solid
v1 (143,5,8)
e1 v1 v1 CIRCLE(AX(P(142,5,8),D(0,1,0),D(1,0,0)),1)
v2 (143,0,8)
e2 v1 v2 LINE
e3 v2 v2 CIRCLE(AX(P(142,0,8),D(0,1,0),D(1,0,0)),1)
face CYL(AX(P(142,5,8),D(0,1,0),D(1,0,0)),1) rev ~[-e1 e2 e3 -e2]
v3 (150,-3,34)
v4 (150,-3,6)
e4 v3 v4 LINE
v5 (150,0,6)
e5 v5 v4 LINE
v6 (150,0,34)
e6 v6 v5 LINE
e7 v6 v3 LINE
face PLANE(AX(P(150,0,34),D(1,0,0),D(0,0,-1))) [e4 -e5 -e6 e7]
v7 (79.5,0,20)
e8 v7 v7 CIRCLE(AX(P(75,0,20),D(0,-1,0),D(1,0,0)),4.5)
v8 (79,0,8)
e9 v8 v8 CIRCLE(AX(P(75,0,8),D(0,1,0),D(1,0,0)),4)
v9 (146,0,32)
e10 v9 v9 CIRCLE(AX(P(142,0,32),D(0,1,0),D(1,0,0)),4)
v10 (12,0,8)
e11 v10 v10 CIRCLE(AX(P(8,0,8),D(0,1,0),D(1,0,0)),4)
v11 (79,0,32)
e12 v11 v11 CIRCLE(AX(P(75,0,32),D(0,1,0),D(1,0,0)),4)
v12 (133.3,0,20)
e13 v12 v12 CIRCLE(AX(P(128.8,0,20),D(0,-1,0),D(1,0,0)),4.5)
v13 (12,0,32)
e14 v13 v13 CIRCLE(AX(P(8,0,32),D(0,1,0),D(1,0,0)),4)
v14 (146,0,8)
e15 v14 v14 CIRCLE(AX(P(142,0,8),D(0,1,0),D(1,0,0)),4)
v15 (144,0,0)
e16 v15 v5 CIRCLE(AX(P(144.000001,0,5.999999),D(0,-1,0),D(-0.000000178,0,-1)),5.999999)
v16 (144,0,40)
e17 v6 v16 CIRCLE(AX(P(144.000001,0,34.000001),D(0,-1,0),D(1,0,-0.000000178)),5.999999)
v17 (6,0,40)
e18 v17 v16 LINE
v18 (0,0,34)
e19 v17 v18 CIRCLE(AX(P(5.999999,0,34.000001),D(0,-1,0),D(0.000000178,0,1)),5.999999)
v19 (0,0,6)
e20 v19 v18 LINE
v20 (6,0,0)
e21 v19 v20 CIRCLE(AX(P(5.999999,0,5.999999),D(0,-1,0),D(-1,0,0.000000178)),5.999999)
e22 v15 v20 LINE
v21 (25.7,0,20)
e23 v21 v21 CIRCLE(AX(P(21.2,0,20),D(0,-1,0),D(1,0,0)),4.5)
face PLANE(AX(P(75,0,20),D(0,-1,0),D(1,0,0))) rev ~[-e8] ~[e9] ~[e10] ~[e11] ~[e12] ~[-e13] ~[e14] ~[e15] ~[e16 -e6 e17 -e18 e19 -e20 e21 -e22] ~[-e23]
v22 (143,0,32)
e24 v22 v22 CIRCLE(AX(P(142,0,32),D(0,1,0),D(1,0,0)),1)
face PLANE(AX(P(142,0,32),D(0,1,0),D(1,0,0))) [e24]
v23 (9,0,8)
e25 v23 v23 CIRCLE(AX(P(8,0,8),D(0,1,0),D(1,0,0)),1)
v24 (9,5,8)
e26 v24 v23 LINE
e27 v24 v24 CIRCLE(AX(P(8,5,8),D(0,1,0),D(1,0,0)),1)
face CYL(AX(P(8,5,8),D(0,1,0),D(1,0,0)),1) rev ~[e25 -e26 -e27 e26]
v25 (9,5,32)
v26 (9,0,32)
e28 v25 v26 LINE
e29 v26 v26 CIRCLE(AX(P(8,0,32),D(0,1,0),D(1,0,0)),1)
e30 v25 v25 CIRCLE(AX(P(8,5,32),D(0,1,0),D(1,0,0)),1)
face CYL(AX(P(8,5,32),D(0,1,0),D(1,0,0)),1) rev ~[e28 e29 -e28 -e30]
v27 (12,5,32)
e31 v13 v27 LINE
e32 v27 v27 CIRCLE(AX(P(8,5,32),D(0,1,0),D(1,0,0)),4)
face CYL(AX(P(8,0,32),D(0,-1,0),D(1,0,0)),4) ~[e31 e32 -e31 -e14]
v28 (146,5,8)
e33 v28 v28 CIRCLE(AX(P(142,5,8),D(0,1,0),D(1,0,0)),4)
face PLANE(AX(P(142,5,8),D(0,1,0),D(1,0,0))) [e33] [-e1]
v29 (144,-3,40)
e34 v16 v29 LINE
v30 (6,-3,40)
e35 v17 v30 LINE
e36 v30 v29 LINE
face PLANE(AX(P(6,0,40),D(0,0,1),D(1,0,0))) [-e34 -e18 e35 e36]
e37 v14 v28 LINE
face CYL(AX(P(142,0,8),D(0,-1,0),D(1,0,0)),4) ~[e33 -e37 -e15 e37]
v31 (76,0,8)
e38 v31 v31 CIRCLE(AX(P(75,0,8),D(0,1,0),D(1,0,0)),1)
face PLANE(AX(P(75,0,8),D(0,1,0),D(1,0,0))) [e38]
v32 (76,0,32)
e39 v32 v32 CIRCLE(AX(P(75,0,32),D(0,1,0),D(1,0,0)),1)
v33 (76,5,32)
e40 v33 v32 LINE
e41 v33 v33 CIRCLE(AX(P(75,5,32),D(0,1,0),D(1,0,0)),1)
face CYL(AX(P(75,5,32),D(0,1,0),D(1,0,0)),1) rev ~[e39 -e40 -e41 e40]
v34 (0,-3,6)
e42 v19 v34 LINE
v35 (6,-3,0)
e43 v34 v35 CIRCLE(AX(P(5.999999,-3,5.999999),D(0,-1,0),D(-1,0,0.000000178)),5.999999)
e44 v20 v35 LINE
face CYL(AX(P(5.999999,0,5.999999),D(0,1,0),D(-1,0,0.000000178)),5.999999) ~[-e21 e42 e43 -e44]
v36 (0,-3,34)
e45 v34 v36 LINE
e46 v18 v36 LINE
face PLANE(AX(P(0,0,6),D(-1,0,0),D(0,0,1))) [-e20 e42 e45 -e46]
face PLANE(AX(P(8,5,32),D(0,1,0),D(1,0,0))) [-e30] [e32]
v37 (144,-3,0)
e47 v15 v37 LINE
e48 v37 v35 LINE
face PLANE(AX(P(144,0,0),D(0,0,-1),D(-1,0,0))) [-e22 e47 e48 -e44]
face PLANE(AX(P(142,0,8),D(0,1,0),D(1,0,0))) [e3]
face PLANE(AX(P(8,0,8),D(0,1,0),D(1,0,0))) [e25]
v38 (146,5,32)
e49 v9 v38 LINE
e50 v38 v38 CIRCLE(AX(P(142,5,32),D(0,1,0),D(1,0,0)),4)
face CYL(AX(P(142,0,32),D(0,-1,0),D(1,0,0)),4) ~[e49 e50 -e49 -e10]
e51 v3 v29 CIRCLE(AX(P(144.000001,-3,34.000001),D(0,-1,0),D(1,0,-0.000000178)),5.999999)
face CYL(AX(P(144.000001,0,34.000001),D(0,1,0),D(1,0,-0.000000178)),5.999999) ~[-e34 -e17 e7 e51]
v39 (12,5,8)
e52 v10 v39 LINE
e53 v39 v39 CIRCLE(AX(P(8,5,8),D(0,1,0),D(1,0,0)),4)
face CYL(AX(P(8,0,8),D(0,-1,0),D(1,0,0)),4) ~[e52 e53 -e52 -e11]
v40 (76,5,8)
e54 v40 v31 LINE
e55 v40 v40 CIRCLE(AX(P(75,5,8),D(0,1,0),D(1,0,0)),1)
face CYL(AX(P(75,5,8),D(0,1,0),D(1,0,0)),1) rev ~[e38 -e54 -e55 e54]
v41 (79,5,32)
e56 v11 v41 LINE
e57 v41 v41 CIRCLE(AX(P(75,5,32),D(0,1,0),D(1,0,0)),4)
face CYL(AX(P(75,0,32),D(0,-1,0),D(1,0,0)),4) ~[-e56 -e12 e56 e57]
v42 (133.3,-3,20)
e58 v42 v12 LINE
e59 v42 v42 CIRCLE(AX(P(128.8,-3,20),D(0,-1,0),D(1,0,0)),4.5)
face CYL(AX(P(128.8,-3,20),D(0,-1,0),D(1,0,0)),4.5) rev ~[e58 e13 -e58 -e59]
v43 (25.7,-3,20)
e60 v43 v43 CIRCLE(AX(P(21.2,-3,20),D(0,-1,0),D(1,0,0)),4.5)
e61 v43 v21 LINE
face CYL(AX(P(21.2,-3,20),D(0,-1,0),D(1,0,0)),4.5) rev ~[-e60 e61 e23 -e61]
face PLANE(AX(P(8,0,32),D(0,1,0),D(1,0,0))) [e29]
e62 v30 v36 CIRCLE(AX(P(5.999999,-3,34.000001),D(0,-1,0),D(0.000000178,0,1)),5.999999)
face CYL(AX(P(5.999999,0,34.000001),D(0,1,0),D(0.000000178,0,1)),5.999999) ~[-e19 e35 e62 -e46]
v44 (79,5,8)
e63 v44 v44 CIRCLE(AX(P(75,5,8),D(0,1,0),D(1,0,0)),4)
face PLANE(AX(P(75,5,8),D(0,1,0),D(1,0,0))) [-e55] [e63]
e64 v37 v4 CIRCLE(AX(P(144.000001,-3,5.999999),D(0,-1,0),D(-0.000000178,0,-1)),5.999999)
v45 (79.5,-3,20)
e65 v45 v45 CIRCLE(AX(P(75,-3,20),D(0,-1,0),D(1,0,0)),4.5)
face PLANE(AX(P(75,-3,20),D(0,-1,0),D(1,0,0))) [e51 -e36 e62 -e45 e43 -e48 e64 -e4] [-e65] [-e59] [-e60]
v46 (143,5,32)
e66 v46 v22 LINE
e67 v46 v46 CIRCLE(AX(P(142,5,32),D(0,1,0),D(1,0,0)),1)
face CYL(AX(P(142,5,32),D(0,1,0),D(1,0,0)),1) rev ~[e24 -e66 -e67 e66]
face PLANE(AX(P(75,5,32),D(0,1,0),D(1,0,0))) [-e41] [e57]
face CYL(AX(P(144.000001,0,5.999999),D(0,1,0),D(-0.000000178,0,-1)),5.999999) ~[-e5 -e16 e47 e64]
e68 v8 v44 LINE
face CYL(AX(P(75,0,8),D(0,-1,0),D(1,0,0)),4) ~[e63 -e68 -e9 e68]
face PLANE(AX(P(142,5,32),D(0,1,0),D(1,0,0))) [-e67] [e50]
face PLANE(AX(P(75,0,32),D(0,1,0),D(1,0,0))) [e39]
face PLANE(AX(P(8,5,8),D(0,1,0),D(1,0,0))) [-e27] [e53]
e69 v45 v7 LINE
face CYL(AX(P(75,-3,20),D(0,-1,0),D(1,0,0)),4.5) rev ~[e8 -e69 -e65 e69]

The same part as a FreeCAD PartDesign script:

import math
import FreeCAD as App
import Part
import Sketcher
from FreeCAD import Vector
Q = App.Units.Quantity

doc = App.newDocument("Part")
body = doc.addObject("PartDesign::Body", "Body")

sketch1 = doc.addObject("Sketcher::SketchObject", "Sketch")
body.addObject(sketch1)
sketch1.AttachmentSupport = (doc.XZ_Plane, [""])
sketch1.MapMode = "FlatFace"
sketch1.addGeometry(Part.ArcOfCircle(Part.Circle(Vector(5.999999, 34.000001, 0), Vector(0, 0, 1), 5.999999), math.radians(89.99999), math.radians(180.00001)), False)
sketch1.addGeometry(Part.LineSegment(Vector(0, 34, 0), Vector(0, 6, 0)), False)
sketch1.addGeometry(Part.ArcOfCircle(Part.Circle(Vector(5.999999, 5.999999, 0), Vector(0, 0, 1), 5.999999), math.radians(179.99999), math.radians(270.00001)), False)
sketch1.addGeometry(Part.LineSegment(Vector(6, 0, 0), Vector(144, 0, 0)), False)
sketch1.addGeometry(Part.ArcOfCircle(Part.Circle(Vector(144.000001, 5.999999, 0), Vector(0, 0, 1), 5.999999), math.radians(-90.00001), math.radians(0.00001)), False)
sketch1.addGeometry(Part.LineSegment(Vector(150, 6, 0), Vector(150, 34, 0)), False)
sketch1.addGeometry(Part.ArcOfCircle(Part.Circle(Vector(144.000001, 34.000001, 0), Vector(0, 0, 1), 5.999999), math.radians(-0.00001), math.radians(90.00001)), False)
sketch1.addGeometry(Part.LineSegment(Vector(144, 40, 0), Vector(6, 40, 0)), False)
sketch1.addConstraint(Sketcher.Constraint("Tangent", 0, 2, 1, 1))
sketch1.addConstraint(Sketcher.Constraint("Tangent", 1, 2, 2, 1))
sketch1.addConstraint(Sketcher.Constraint("Tangent", 2, 2, 3, 1))
sketch1.addConstraint(Sketcher.Constraint("Tangent", 3, 2, 4, 1))
sketch1.addConstraint(Sketcher.Constraint("Tangent", 4, 2, 5, 1))
sketch1.addConstraint(Sketcher.Constraint("Tangent", 5, 2, 6, 1))
sketch1.addConstraint(Sketcher.Constraint("Tangent", 6, 2, 7, 1))
sketch1.addConstraint(Sketcher.Constraint("Tangent", 7, 2, 0, 1))
sketch1.addConstraint(Sketcher.Constraint("Vertical", 1))
sketch1.addConstraint(Sketcher.Constraint("Horizontal", 3))
sketch1.addConstraint(Sketcher.Constraint("Vertical", 5))
sketch1.addConstraint(Sketcher.Constraint("Horizontal", 7))
sketch1.addConstraint(Sketcher.Constraint("Equal", 0, 2))
sketch1.addConstraint(Sketcher.Constraint("Equal", 2, 4))
sketch1.addConstraint(Sketcher.Constraint("Equal", 4, 6))
sketch1.addConstraint(Sketcher.Constraint("PointOnObject", 0, 2, -2))
sketch1.addConstraint(Sketcher.Constraint("PointOnObject", 2, 2, -1))
sketch1.addConstraint(Sketcher.Constraint("Radius", 0, Q("5.999999 mm")))
sketch1.addConstraint(Sketcher.Constraint("DistanceX", 3, 1, 3, 2, Q("138 mm")))
sketch1.addConstraint(Sketcher.Constraint("DistanceY", 1, 2, 1, 1, Q("28 mm")))
pad1 = doc.addObject("PartDesign::Pad", "Pad")
body.addObject(pad1)
pad1.Profile = sketch1
pad1.Length = 3

sketch2 = doc.addObject("Sketcher::SketchObject", "Sketch001")
body.addObject(sketch2)
sketch2.AttachmentSupport = (doc.XZ_Plane, [""])
sketch2.MapMode = "FlatFace"
sketch2.addGeometry(Part.Circle(Vector(8, 8, 0), Vector(0, 0, 1), 4), False)
sketch2.addGeometry(Part.Circle(Vector(8, 32, 0), Vector(0, 0, 1), 4), False)
sketch2.addGeometry(Part.Circle(Vector(142, 8, 0), Vector(0, 0, 1), 4), False)
sketch2.addGeometry(Part.Circle(Vector(142, 32, 0), Vector(0, 0, 1), 4), False)
sketch2.addGeometry(Part.Circle(Vector(75, 8, 0), Vector(0, 0, 1), 4), False)
sketch2.addGeometry(Part.Circle(Vector(75, 32, 0), Vector(0, 0, 1), 4), False)
sketch2.addConstraint(Sketcher.Constraint("Equal", 0, 1))
sketch2.addConstraint(Sketcher.Constraint("Equal", 1, 2))
sketch2.addConstraint(Sketcher.Constraint("Equal", 2, 3))
sketch2.addConstraint(Sketcher.Constraint("Equal", 3, 4))
sketch2.addConstraint(Sketcher.Constraint("Equal", 4, 5))
sketch2.addConstraint(Sketcher.Constraint("Horizontal", 0, 3, 2, 3))
sketch2.addConstraint(Sketcher.Constraint("Horizontal", 1, 3, 3, 3))
sketch2.addConstraint(Sketcher.Constraint("Horizontal", 2, 3, 4, 3))
sketch2.addConstraint(Sketcher.Constraint("Horizontal", 3, 3, 5, 3))
sketch2.addConstraint(Sketcher.Constraint("Vertical", 0, 3, 1, 3))
sketch2.addConstraint(Sketcher.Constraint("Vertical", 2, 3, 3, 3))
sketch2.addConstraint(Sketcher.Constraint("Vertical", 4, 3, 5, 3))
sketch2.addConstraint(Sketcher.Constraint("Diameter", 0, Q("8 mm")))
sketch2.addConstraint(Sketcher.Constraint("DistanceX", -1, 1, 0, 3, Q("8 mm")))
sketch2.addConstraint(Sketcher.Constraint("DistanceY", -1, 1, 0, 3, Q("8 mm")))
sketch2.addConstraint(Sketcher.Constraint("DistanceY", -1, 1, 1, 3, Q("32 mm")))
sketch2.addConstraint(Sketcher.Constraint("DistanceX", -1, 1, 2, 3, Q("142 mm")))
sketch2.addConstraint(Sketcher.Constraint("DistanceX", -1, 1, 4, 3, Q("75 mm")))
pad2 = doc.addObject("PartDesign::Pad", "Pad001")
body.addObject(pad2)
pad2.Profile = sketch2
pad2.Length = 5
pad2.Reversed = True

sketch3 = doc.addObject("Sketcher::SketchObject", "Sketch002")
body.addObject(sketch3)
sketch3.AttachmentSupport = (doc.XZ_Plane, [""])
sketch3.MapMode = "FlatFace"
sketch3.AttachmentOffset = App.Placement(Vector(0, 0, 3), App.Rotation())
sketch3.addGeometry(Part.Circle(Vector(21.2, 20, 0), Vector(0, 0, 1), 4.5), False)
sketch3.addGeometry(Part.Circle(Vector(75, 20, 0), Vector(0, 0, 1), 4.5), False)
sketch3.addGeometry(Part.Circle(Vector(128.8, 20, 0), Vector(0, 0, 1), 4.5), False)
sketch3.addConstraint(Sketcher.Constraint("Equal", 0, 1))
sketch3.addConstraint(Sketcher.Constraint("Equal", 1, 2))
sketch3.addConstraint(Sketcher.Constraint("Horizontal", 0, 3, 1, 3))
sketch3.addConstraint(Sketcher.Constraint("Horizontal", 1, 3, 2, 3))
sketch3.addConstraint(Sketcher.Constraint("Diameter", 0, Q("9 mm")))
sketch3.addConstraint(Sketcher.Constraint("DistanceY", -1, 1, 0, 3, Q("20 mm")))
sketch3.addConstraint(Sketcher.Constraint("DistanceX", -1, 1, 1, 3, Q("75 mm")))
sketch3.addConstraint(Sketcher.Constraint("DistanceX", -1, 1, 0, 3, Q("21.2 mm")))
sketch3.addConstraint(Sketcher.Constraint("DistanceX", -1, 1, 2, 3, Q("128.8 mm")))
pocket1 = doc.addObject("PartDesign::Pocket", "Pocket")
body.addObject(pocket1)
pocket1.Profile = sketch3
pocket1.Type = "ThroughAll"

sketch4 = doc.addObject("Sketcher::SketchObject", "Sketch003")
body.addObject(sketch4)
sketch4.AttachmentSupport = (doc.XZ_Plane, [""])
sketch4.MapMode = "FlatFace"
sketch4.AttachmentOffset = App.Placement(Vector(0, 0, -5), App.Rotation())
sketch4.addGeometry(Part.Circle(Vector(8, 8, 0), Vector(0, 0, 1), 1), False)
sketch4.addGeometry(Part.Circle(Vector(8, 32, 0), Vector(0, 0, 1), 1), False)
sketch4.addGeometry(Part.Circle(Vector(75, 32, 0), Vector(0, 0, 1), 1), False)
sketch4.addGeometry(Part.Circle(Vector(142, 32, 0), Vector(0, 0, 1), 1), False)
sketch4.addGeometry(Part.Circle(Vector(75, 8, 0), Vector(0, 0, 1), 1), False)
sketch4.addGeometry(Part.Circle(Vector(142, 8, 0), Vector(0, 0, 1), 1), False)
sketch4.addConstraint(Sketcher.Constraint("Equal", 0, 1))
sketch4.addConstraint(Sketcher.Constraint("Equal", 1, 2))
sketch4.addConstraint(Sketcher.Constraint("Equal", 2, 3))
sketch4.addConstraint(Sketcher.Constraint("Equal", 3, 4))
sketch4.addConstraint(Sketcher.Constraint("Equal", 4, 5))
sketch4.addConstraint(Sketcher.Constraint("Horizontal", 1, 3, 2, 3))
sketch4.addConstraint(Sketcher.Constraint("Horizontal", 2, 3, 3, 3))
sketch4.addConstraint(Sketcher.Constraint("Horizontal", 0, 3, 4, 3))
sketch4.addConstraint(Sketcher.Constraint("Horizontal", 4, 3, 5, 3))
sketch4.addConstraint(Sketcher.Constraint("Vertical", 0, 3, 1, 3))
sketch4.addConstraint(Sketcher.Constraint("Vertical", 2, 3, 4, 3))
sketch4.addConstraint(Sketcher.Constraint("Vertical", 3, 3, 5, 3))
sketch4.addConstraint(Sketcher.Constraint("Diameter", 0, Q("2 mm")))
sketch4.addConstraint(Sketcher.Constraint("DistanceX", -1, 1, 0, 3, Q("8 mm")))
sketch4.addConstraint(Sketcher.Constraint("DistanceY", -1, 1, 0, 3, Q("8 mm")))
sketch4.addConstraint(Sketcher.Constraint("DistanceY", -1, 1, 1, 3, Q("32 mm")))
sketch4.addConstraint(Sketcher.Constraint("DistanceX", -1, 1, 2, 3, Q("75 mm")))
sketch4.addConstraint(Sketcher.Constraint("DistanceX", -1, 1, 3, 3, Q("142 mm")))
pocket2 = doc.addObject("PartDesign::Pocket", "Pocket001")
body.addObject(pocket2)
pocket2.Profile = sketch4
pocket2.Length = 5
pocket2.Reversed = True

doc.recompute()
